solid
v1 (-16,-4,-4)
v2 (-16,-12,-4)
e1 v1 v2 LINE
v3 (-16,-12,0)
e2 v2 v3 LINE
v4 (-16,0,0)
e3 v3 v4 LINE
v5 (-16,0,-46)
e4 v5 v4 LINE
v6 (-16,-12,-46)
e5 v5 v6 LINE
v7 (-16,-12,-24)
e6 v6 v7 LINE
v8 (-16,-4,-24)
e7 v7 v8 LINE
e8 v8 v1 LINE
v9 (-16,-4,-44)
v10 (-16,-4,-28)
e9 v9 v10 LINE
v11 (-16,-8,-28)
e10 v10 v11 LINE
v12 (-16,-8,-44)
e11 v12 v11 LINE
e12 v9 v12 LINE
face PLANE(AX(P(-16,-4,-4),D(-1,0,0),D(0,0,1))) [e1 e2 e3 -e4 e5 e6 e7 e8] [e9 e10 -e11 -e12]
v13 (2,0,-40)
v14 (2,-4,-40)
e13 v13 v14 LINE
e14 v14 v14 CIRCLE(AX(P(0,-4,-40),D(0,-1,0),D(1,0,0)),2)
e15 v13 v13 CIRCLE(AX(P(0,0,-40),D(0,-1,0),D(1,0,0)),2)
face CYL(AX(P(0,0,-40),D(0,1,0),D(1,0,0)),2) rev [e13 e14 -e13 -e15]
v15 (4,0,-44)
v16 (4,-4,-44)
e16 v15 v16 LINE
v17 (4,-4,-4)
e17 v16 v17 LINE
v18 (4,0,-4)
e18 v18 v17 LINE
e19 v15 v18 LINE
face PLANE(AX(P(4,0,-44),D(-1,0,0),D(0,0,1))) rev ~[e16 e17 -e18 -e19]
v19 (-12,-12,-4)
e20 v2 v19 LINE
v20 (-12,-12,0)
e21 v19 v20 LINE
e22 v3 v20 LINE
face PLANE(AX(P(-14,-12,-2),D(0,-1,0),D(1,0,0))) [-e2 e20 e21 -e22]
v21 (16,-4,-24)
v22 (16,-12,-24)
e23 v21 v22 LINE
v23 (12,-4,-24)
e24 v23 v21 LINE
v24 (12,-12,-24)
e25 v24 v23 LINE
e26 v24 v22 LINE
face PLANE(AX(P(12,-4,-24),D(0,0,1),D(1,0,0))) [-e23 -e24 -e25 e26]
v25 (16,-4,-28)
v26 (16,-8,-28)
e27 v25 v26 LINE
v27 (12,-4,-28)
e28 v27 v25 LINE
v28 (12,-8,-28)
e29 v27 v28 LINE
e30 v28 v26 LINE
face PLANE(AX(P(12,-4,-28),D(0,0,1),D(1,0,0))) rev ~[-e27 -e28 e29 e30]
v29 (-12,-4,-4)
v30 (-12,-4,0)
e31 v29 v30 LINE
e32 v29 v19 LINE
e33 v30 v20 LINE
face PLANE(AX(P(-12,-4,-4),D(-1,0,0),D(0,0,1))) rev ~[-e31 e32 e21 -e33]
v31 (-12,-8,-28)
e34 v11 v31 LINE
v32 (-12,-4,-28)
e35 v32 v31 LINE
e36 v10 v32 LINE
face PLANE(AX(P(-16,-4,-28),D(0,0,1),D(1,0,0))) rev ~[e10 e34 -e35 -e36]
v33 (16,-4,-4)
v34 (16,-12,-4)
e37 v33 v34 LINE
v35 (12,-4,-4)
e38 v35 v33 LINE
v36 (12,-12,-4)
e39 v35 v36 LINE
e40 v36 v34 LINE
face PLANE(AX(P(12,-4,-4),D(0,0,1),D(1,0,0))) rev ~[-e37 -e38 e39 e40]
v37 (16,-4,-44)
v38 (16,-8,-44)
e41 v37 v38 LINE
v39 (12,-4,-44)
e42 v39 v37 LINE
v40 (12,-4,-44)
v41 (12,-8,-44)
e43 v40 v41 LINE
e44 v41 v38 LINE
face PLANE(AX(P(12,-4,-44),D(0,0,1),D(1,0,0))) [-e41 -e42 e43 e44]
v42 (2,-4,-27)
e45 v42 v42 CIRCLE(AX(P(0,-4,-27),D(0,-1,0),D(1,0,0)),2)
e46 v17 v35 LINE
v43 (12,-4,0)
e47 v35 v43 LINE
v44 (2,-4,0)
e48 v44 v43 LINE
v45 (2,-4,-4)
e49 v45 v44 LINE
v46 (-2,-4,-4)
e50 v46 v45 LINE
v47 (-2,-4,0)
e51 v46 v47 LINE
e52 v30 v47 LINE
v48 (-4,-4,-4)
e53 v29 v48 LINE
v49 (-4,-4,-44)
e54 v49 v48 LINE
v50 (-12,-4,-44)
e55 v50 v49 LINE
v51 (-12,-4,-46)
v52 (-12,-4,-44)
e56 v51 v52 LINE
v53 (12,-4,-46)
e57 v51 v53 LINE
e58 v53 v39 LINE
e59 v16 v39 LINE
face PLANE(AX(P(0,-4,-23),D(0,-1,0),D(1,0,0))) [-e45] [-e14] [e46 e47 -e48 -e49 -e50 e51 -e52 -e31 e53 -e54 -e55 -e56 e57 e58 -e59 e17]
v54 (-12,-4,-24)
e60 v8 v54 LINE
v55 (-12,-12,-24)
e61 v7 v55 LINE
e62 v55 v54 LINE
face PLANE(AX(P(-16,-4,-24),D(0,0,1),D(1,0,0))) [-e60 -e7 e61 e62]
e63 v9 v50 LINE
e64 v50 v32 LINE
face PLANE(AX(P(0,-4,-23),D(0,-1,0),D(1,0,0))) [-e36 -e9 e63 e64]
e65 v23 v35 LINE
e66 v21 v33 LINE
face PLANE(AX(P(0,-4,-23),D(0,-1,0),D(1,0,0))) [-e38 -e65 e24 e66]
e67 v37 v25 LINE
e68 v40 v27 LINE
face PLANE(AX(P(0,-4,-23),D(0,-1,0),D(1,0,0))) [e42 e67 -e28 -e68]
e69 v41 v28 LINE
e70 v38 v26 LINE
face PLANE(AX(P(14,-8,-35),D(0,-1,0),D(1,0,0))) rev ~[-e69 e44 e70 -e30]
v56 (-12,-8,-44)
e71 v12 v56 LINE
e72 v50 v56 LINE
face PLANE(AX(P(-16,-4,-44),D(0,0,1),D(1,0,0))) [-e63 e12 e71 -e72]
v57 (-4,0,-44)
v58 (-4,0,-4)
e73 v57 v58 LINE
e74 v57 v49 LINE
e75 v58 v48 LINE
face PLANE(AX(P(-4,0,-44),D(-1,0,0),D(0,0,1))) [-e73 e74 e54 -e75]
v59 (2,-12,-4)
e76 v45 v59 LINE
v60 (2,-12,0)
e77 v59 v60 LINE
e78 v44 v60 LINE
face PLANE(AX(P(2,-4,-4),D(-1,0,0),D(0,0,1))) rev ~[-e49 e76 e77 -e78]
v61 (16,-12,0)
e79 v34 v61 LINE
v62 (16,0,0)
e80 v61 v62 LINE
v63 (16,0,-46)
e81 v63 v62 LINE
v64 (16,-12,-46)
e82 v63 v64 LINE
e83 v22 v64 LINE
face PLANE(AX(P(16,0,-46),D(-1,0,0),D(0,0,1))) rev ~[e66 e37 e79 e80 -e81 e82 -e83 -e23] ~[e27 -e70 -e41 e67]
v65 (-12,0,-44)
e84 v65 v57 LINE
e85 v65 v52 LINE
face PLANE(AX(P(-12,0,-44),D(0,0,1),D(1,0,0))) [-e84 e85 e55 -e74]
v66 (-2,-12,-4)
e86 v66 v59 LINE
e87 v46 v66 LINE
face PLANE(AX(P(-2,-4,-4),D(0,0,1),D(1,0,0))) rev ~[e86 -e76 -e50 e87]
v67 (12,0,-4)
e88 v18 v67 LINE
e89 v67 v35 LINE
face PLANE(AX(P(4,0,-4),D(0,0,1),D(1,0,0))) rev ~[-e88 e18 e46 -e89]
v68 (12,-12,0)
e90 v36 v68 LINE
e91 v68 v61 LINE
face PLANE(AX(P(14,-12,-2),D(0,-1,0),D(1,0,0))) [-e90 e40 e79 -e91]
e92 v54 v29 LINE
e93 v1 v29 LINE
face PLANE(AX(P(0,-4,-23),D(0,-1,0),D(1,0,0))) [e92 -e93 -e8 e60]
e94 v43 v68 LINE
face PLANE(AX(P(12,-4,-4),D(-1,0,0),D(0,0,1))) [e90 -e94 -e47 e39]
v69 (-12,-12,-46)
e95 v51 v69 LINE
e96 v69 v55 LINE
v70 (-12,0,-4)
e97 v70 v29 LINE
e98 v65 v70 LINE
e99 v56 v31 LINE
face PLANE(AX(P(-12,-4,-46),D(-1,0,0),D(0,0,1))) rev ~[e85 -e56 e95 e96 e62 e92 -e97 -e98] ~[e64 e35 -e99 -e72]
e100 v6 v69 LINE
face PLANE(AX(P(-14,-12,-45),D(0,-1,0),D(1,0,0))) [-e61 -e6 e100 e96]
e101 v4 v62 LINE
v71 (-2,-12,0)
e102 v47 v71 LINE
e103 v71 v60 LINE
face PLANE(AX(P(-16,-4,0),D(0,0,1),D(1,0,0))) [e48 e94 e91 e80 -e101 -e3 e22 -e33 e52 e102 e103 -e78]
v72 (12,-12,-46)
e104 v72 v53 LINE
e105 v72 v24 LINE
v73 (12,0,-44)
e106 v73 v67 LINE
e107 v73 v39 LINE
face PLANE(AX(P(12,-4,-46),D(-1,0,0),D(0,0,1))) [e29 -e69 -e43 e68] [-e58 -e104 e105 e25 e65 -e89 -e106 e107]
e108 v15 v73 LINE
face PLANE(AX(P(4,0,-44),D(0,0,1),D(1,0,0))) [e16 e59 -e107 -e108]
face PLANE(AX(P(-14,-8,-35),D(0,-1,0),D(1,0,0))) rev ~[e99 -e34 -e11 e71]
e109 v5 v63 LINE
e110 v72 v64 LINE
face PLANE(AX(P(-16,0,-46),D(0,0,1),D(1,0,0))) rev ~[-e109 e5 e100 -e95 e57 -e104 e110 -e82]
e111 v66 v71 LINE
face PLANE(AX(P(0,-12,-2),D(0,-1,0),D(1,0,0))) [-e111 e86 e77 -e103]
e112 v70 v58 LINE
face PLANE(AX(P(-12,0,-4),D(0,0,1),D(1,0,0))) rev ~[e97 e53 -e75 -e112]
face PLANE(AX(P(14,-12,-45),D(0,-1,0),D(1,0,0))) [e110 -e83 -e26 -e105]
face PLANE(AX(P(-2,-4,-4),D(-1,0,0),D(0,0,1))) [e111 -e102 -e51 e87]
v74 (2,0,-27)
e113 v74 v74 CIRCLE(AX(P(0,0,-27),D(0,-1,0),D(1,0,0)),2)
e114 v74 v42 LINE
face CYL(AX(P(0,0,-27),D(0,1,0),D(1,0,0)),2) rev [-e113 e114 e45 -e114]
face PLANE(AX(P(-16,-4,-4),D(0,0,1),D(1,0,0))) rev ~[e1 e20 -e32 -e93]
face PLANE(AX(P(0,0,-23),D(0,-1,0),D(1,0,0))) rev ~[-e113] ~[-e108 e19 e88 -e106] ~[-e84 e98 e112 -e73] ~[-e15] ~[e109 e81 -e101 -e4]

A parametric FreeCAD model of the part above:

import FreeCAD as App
import Part
import Sketcher
from FreeCAD import Vector


def add_polygon(sketch, points):
    """Adds a closed chain of lines whose ends are joined by coincident constraints."""
    first, n = sketch.GeometryCount, len(points)
    for a, b in zip(points, points[1:] + points[:1]):
        sketch.addGeometry(Part.LineSegment(App.Vector(*a, 0), App.Vector(*b, 0)), False)
    for i in range(n):
        sketch.addConstraint(Sketcher.Constraint("Coincident", first + i, 2, first + (i + 1) % n, 1))

doc = App.newDocument("Part")
params = doc.addObject("Spreadsheet::Sheet", "Params")
for row, (alias, value) in enumerate([
    ("sketch1_diameter", "4 mm"),
    ("sketch1_width", "32 mm"),
    ("sketch1_width2", "8 mm"),
    ("sketch1_height", "46 mm"),
    ("sketch1_height2", "40 mm"),
    ("pad1_length", "4 mm"),
    ("sketch2_width", "4 mm"),
    ("sketch2_height", "2 mm"),
    ("pad2_length", "8 mm"),
    ("sketch3_width", "4 mm"),
    ("sketch3_height", "22 mm"),
    ("pad3_length", "4 mm"),
], start=1):
    params.set(f"A{row}", alias)
    params.set(f"B{row}", "=" + value)
    params.setAlias(f"B{row}", alias)

body = doc.addObject("PartDesign::Body", "Body")

sketch1 = body.newObject("Sketcher::SketchObject", "Sketch")
sketch1.AttachmentSupport = (doc.getObject("XZ_Plane"), [""])
sketch1.MapMode = "FlatFace"
add_polygon(sketch1, [(-16, 0), (-16, -46), (16, -46), (16, 0)])
sketch1.addGeometry(Part.Circle(Vector(0, -40, 0), Vector(0, 0, 1), 2), False)
sketch1.addGeometry(Part.Circle(Vector(0, -27, 0), Vector(0, 0, 1), 2), False)
add_polygon(sketch1, [(-4, -44), (-12, -44), (-12, -4), (-4, -4)])
add_polygon(sketch1, [(12, -44), (4, -44), (4, -4), (12, -4)])
sketch1.addConstraint([
    Sketcher.Constraint("Vertical", 0),
    Sketcher.Constraint("Horizontal", 1),
    Sketcher.Constraint("Vertical", 2),
    Sketcher.Constraint("Horizontal", 3),
    Sketcher.Constraint("Horizontal", 6),
    Sketcher.Constraint("Vertical", 7),
    Sketcher.Constraint("Horizontal", 8),
    Sketcher.Constraint("Vertical", 9),
    Sketcher.Constraint("Horizontal", 10),
    Sketcher.Constraint("Vertical", 11),
    Sketcher.Constraint("Horizontal", 12),
    Sketcher.Constraint("Vertical", 13),
    Sketcher.Constraint("Equal", 4, 5),
    Sketcher.Constraint("Symmetric", 2, 2, 3, 2, -1, 1),
    Sketcher.Constraint("Symmetric", 9, 2, 10, 2, -2),
    Sketcher.Constraint("Symmetric", 7, 2, 12, 2, -2),
    Sketcher.Constraint("PointOnObject", 4, 3, -2),
    Sketcher.Constraint("PointOnObject", 5, 3, -2),
    Sketcher.Constraint("Diameter", 4, 4.0),
    Sketcher.Constraint("DistanceX", 1, 1, 1, 2, 32.0),
    Sketcher.Constraint("DistanceX", 6, 2, 6, 1, 8.0),
    Sketcher.Constraint("DistanceY", 0, 2, 0, 1, 46.0),
    Sketcher.Constraint("DistanceY", 7, 1, 7, 2, 40.0),
    Sketcher.Constraint("DistanceY", 4, 3, -1, 1, 40.0),
    Sketcher.Constraint("DistanceY", 5, 3, -1, 1, 27.0),
    Sketcher.Constraint("DistanceX", 6, 2, -1, 1, 12.0),
    Sketcher.Constraint("DistanceY", 6, 2, -1, 1, 44.0),
])
sketch1.setExpression("Constraints[30]", "Params.sketch1_diameter")
sketch1.setExpression("Constraints[31]", "Params.sketch1_width")
sketch1.setExpression("Constraints[32]", "Params.sketch1_width2")
sketch1.setExpression("Constraints[33]", "Params.sketch1_height")
sketch1.setExpression("Constraints[34]", "Params.sketch1_height2")
pad1 = body.newObject("PartDesign::Pad", "Pad")
pad1.Profile = sketch1
pad1.setExpression("Length", "Params.pad1_length")

sketch2 = body.newObject("Sketcher::SketchObject", "Sketch001")
sketch2.AttachmentSupport = (doc.getObject("XZ_Plane"), [""])
sketch2.MapMode = "FlatFace"
sketch2.AttachmentOffset = App.Placement(Vector(0, 0, 4), App.Rotation())
add_polygon(sketch2, [(-16, 0), (-16, -4), (-12, -4), (-12, 0)])
add_polygon(sketch2, [(12, 0), (12, -4), (16, -4), (16, 0)])
add_polygon(sketch2, [(-2, 0), (-2, -4), (2, -4), (2, 0)])
add_polygon(sketch2, [(-16, -24), (-16, -28), (-12, -28), (-12, -24)])
add_polygon(sketch2, [(12, -24), (12, -28), (16, -28), (16, -24)])
add_polygon(sketch2, [(-16, -44), (-16, -46), (-12, -46), (-12, -44)])
add_polygon(sketch2, [(12, -44), (12, -46), (16, -46), (16, -44)])
sketch2.addConstraint([
    Sketcher.Constraint("Vertical", 0),
    Sketcher.Constraint("Horizontal", 1),
    Sketcher.Constraint("Vertical", 2),
    Sketcher.Constraint("Horizontal", 3),
    Sketcher.Constraint("Vertical", 4),
    Sketcher.Constraint("Horizontal", 5),
    Sketcher.Constraint("Vertical", 6),
    Sketcher.Constraint("Horizontal", 7),
    Sketcher.Constraint("Vertical", 8),
    Sketcher.Constraint("Horizontal", 9),
    Sketcher.Constraint("Vertical", 10),
    Sketcher.Constraint("Horizontal", 11),
    Sketcher.Constraint("Vertical", 12),
    Sketcher.Constraint("Horizontal", 13),
    Sketcher.Constraint("Vertical", 14),
    Sketcher.Constraint("Horizontal", 15),
    Sketcher.Constraint("Vertical", 16),
    Sketcher.Constraint("Horizontal", 17),
    Sketcher.Constraint("Vertical", 18),
    Sketcher.Constraint("Horizontal", 19),
    Sketcher.Constraint("Vertical", 20),
    Sketcher.Constraint("Horizontal", 21),
    Sketcher.Constraint("Vertical", 22),
    Sketcher.Constraint("Horizontal", 23),
    Sketcher.Constraint("Vertical", 24),
    Sketcher.Constraint("Horizontal", 25),
    Sketcher.Constraint("Vertical", 26),
    Sketcher.Constraint("Horizontal", 27),
    Sketcher.Constraint("Symmetric", 3, 2, 6, 2, -1, 1),
    Sketcher.Constraint("Symmetric", 10, 2, 11, 2, -1, 1),
    Sketcher.Constraint("Symmetric", 1, 2, 4, 2, -2),
    Sketcher.Constraint("Symmetric", 13, 2, 16, 2, -2),
    Sketcher.Constraint("Symmetric", 15, 2, 18, 2, -2),
    Sketcher.Constraint("Symmetric", 21, 2, 24, 2, -2),
    Sketcher.Constraint("Symmetric", 23, 2, 26, 2, -2),
    Sketcher.Constraint("PointOnObject", 2, 2, -1),
    Sketcher.Constraint("Horizontal", 5, 2, 8, 2),
    Sketcher.Constraint("Vertical", 3, 2, 12, 2),
    Sketcher.Constraint("Vertical", 2, 2, 13, 2),
    Sketcher.Constraint("Vertical", 15, 2, 20, 2),
    Sketcher.Constraint("Vertical", 14, 2, 21, 2),
    Sketcher.Constraint("Equal", 7, 9),
    Sketcher.Constraint("Equal", 27, 0),
    Sketcher.Constraint("Equal", 10, 12),
    Sketcher.Constraint("DistanceX", 1, 1, 1, 2, 4.0),
    Sketcher.Constraint("DistanceY", 20, 2, 20, 1, 2.0),
    Sketcher.Constraint("DistanceX", 0, 2, -1, 1, 16.0),
    Sketcher.Constraint("DistanceY", 12, 2, -1, 1, 28.0),
    Sketcher.Constraint("DistanceY", 20, 2, -1, 1, 46.0),
])
sketch2.setExpression("Constraints[72]", "Params.sketch2_width")
sketch2.setExpression("Constraints[73]", "Params.sketch2_height")
pad2 = body.newObject("PartDesign::Pad", "Pad001")
pad2.Profile = sketch2
pad2.setExpression("Length", "Params.pad2_length")

sketch3 = body.newObject("Sketcher::SketchObject", "Sketch002")
sketch3.AttachmentSupport = (doc.getObject("XZ_Plane"), [""])
sketch3.MapMode = "FlatFace"
sketch3.AttachmentOffset = App.Placement(Vector(0, 0, 12), App.Rotation())
add_polygon(sketch3, [(-16, -24), (-16, -46), (-12, -46), (-12, -24)])
add_polygon(sketch3, [(12, -24), (12, -46), (16, -46), (16, -24)])
sketch3.addConstraint([
    Sketcher.Constraint("Vertical", 0),
    Sketcher.Constraint("Horizontal", 1),
    Sketcher.Constraint("Vertical", 2),
    Sketcher.Constraint("Horizontal", 3),
    Sketcher.Constraint("Vertical", 4),
    Sketcher.Constraint("Horizontal", 5),
    Sketcher.Constraint("Vertical", 6),
    Sketcher.Constraint("Horizontal", 7),
    Sketcher.Constraint("Symmetric", 1, 2, 4, 2, -2),
    Sketcher.Constraint("Symmetric", 3, 2, 6, 2, -2),
    Sketcher.Constraint("DistanceX", 1, 1, 1, 2, 4.0),
    Sketcher.Constraint("DistanceY", 0, 2, 0, 1, 22.0),
    Sketcher.Constraint("DistanceX", 0, 2, -1, 1, 16.0),
    Sketcher.Constraint("DistanceY", 0, 2, -1, 1, 46.0),
])
sketch3.setExpression("Constraints[18]", "Params.sketch3_width")
sketch3.setExpression("Constraints[19]", "Params.sketch3_height")
pad3 = body.newObject("PartDesign::Pad", "Pad002")
pad3.Profile = sketch3
pad3.setExpression("Length", "Params.pad3_length")
pad3.Reversed = True

doc.recompute()
